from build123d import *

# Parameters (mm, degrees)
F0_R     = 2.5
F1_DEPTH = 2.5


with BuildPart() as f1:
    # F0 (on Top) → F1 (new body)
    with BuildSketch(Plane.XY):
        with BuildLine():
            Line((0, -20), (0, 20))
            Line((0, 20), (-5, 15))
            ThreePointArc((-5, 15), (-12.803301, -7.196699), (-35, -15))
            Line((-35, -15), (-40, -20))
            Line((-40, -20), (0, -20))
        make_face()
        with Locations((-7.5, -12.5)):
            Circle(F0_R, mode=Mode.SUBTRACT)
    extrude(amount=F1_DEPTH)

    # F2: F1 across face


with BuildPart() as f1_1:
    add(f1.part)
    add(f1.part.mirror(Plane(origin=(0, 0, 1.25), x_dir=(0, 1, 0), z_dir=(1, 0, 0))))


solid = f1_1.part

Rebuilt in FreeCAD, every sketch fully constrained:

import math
import FreeCAD as App
import Part
import Sketcher
from FreeCAD import Vector
Q = App.Units.Quantity

doc = App.newDocument("Part")
params = doc.addObject("Spreadsheet::Sheet", "Params")
for row, (alias, value) in enumerate([
    ("sketch1_diameter", "5 mm"),
    ("sketch1_width", "40 mm"),
    ("pad1_length", "2.5 mm"),
], start=1):
    params.set(f"A{row}", alias)
    params.set(f"B{row}", "=" + value)
    params.setAlias(f"B{row}", alias)

body = doc.addObject("PartDesign::Body", "Body")

# Sketch on XY plane
sketch1 = body.newObject("Sketcher::SketchObject", "Sketch")
sketch1.AttachmentSupport = (doc.getObject("XY_Plane"), [""])
sketch1.MapMode = "FlatFace"
sketch1.addGeometry(Part.LineSegment(Vector(0, -20, 0), Vector(0, 20, 0)), False)
sketch1.addGeometry(Part.LineSegment(Vector(0, 20, 0), Vector(-5, 15, 0)), False)
sketch1.addGeometry(Part.ArcOfCircle(Part.Circle(Vector(-32.033817, 12.033817, 0), Vector(0, 0, 1), 27.196057), math.radians(-96.261514), math.radians(6.261514)), False)
sketch1.addGeometry(Part.LineSegment(Vector(-35, -15, 0), Vector(-40, -20, 0)), False)
sketch1.addGeometry(Part.LineSegment(Vector(-40, -20, 0), Vector(0, -20, 0)), False)
sketch1.addGeometry(Part.Circle(Vector(-7.5, -12.5, 0), Vector(0, 0, 1), 2.5), False)
sketch1.addConstraint(Sketcher.Constraint("Coincident", 0, 2, 1, 1))
sketch1.addConstraint(Sketcher.Constraint("Coincident", 1, 2, 2, 2))
sketch1.addConstraint(Sketcher.Constraint("Coincident", 2, 1, 3, 1))
sketch1.addConstraint(Sketcher.Constraint("Coincident", 3, 2, 4, 1))
sketch1.addConstraint(Sketcher.Constraint("Coincident", 4, 2, 0, 1))
sketch1.addConstraint(Sketcher.Constraint("Vertical", 0))
sketch1.addConstraint(Sketcher.Constraint("Horizontal", 4))
sketch1.addConstraint(Sketcher.Constraint("Symmetric", 0, 2, 4, 2, -1, 1))
sketch1.addConstraint(Sketcher.Constraint("Parallel", 1, 3))
sketch1.addConstraint(Sketcher.Constraint("Equal", 4, 0))
sketch1.addConstraint(Sketcher.Constraint("Equal", 1, 3))
sketch1.addConstraint(Sketcher.Constraint("Diameter", 5, Q("5 mm")))
sketch1.addConstraint(Sketcher.Constraint("DistanceX", 4, 1, 4, 2, Q("40 mm")))
sketch1.addConstraint(Sketcher.Constraint("Angle", 1, Q("-135 deg")))
sketch1.addConstraint(Sketcher.Constraint("DistanceX", 1, 2, -1, 1, Q("5 mm")))
sketch1.addConstraint(Sketcher.Constraint("DistanceX", 5, 3, -1, 1, Q("7.5 mm")))
sketch1.addConstraint(Sketcher.Constraint("DistanceY", 5, 3, -1, 1, Q("12.5 mm")))
sketch1.addConstraint(Sketcher.Constraint("Radius", 2, Q("27.196057 mm")))
sketch1.setExpression("Constraints[11]", "Params.sketch1_diameter")
sketch1.setExpression("Constraints[12]", "Params.sketch1_width")
pad1 = body.newObject("PartDesign::Pad", "Pad")
pad1.Profile = sketch1
pad1.setExpression("Length", "Params.pad1_length")
body2 = doc.addObject("PartDesign::Body", "Body001")
doc.recompute()

body2.BaseFeature = body
doc.recompute()

mirroring = doc.addObject("Part::Mirroring", "Mirroring")
mirroring.Source = body
mirroring.Base = Vector(0, 0, 1.25)
mirroring.Normal = Vector(1, 0, 0)
body3 = doc.addObject("PartDesign::Body", "Body002")
body3.BaseFeature = mirroring
boolean = body2.newObject("PartDesign::Boolean", "Boolean")
boolean.Type = "Fuse"
boolean.addObjects([body3])
doc.recompute()
mirroring.Visibility = False

doc.recompute()
